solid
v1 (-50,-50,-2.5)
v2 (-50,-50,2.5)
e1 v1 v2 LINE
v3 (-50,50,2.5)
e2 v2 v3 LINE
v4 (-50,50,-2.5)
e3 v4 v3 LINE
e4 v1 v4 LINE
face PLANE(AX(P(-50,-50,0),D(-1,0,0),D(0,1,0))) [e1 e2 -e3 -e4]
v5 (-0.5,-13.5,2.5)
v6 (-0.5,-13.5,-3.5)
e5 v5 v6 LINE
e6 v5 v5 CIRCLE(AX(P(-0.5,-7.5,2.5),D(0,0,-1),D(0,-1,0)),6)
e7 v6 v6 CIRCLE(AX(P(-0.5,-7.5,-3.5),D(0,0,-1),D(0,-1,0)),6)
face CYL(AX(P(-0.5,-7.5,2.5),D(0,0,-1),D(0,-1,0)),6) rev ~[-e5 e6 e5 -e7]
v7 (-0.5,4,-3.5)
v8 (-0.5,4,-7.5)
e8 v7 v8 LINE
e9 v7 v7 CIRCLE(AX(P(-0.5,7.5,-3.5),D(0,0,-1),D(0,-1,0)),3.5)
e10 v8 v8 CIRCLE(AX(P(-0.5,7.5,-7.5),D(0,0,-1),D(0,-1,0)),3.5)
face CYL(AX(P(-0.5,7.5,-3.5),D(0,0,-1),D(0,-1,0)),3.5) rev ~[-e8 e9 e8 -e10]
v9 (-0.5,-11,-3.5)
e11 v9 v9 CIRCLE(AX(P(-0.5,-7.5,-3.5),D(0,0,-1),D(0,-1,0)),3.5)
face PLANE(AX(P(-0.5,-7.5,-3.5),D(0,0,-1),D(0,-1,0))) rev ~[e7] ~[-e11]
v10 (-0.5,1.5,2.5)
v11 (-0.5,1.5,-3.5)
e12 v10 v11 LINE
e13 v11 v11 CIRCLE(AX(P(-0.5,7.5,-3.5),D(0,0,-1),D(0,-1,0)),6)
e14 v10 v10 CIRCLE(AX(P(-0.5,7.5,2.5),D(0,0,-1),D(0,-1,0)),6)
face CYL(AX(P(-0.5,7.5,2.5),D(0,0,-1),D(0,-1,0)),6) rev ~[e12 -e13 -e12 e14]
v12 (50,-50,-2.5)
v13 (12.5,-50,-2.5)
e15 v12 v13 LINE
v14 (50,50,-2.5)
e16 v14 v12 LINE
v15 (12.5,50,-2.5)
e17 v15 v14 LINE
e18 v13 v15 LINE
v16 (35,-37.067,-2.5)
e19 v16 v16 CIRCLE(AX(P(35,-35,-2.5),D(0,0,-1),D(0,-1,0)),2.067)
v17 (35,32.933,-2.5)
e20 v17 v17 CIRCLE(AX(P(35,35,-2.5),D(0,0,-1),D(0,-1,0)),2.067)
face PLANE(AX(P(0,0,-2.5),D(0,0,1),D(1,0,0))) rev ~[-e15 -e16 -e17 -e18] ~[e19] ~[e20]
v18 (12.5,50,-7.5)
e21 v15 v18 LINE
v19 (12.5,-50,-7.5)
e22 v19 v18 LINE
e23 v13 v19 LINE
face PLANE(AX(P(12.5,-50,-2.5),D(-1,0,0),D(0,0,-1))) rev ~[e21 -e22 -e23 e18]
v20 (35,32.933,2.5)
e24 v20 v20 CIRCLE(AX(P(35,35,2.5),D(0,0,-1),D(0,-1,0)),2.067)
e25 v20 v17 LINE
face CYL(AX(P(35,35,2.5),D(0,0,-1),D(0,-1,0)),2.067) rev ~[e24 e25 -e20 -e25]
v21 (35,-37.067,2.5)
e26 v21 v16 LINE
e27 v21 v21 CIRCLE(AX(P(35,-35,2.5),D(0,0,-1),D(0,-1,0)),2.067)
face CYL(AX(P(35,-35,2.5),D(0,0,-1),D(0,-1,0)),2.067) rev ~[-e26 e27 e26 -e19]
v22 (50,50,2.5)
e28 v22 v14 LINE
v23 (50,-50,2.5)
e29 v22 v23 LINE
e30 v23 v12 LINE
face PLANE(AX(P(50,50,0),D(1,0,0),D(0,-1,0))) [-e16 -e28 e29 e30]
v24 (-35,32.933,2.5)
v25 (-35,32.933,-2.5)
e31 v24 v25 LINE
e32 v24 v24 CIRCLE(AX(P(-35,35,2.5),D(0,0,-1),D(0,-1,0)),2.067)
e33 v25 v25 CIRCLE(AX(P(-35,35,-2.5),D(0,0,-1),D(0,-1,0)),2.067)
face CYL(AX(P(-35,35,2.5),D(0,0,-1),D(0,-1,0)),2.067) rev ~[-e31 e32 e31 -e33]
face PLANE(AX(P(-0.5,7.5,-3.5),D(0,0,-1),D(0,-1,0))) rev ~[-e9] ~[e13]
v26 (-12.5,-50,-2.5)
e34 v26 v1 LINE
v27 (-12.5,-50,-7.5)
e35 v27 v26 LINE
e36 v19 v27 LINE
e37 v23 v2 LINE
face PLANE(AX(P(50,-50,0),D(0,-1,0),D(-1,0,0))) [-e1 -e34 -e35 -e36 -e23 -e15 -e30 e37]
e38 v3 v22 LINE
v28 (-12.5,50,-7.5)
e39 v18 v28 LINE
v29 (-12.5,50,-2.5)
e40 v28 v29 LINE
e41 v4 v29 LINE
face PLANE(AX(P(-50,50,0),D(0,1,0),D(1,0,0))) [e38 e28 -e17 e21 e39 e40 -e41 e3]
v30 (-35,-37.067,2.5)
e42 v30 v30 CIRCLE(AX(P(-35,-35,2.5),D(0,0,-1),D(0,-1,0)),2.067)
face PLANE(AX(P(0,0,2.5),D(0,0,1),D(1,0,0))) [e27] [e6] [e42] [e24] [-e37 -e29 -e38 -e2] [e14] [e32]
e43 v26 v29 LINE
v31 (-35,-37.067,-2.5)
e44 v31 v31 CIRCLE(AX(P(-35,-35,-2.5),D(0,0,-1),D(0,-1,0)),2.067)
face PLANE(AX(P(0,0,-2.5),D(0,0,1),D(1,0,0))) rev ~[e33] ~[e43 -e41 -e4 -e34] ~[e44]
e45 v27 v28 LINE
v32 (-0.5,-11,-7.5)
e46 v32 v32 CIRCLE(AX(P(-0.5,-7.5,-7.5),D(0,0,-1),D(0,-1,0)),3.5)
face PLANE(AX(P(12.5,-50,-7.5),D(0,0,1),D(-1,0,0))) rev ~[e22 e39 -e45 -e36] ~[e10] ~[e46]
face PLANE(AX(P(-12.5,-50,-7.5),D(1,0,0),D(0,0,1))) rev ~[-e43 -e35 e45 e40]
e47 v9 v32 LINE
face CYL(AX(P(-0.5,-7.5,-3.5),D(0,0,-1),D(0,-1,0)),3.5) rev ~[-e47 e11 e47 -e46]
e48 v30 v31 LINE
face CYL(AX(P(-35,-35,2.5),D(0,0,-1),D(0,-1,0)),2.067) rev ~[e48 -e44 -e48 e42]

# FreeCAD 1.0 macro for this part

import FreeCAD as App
import Part
import Sketcher

V = App.Vector
Q = App.Units.Quantity


def add_polygon(sketch, points):
    """Adds a closed chain of lines whose ends are joined by coincident constraints."""
    first, n = sketch.GeometryCount, len(points)
    for a, b in zip(points, points[1:] + points[:1]):
        sketch.addGeometry(Part.LineSegment(App.Vector(*a, 0), App.Vector(*b, 0)), False)
    for i in range(n):
        sketch.addConstraint(Sketcher.Constraint("Coincident", first + i, 2, first + (i + 1) % n, 1))

doc = App.newDocument("Part")
body = doc.addObject("PartDesign::Body", "Body")

sketch1 = body.newObject("Sketcher::SketchObject", "Sketch")
sketch1.AttachmentSupport = (doc.getObject("XY_Plane"), [""])
sketch1.MapMode = "FlatFace"
add_polygon(sketch1, [(50, 50), (-50, 50), (-50, -50), (50, -50)])
sketch1.addConstraint([
    Sketcher.Constraint("Horizontal", 0),
    Sketcher.Constraint("Vertical", 1),
    Sketcher.Constraint("Horizontal", 2),
    Sketcher.Constraint("Vertical", 3),
    Sketcher.Constraint("Symmetric", 0, 2, 2, 2, -1, 1),
    Sketcher.Constraint("Equal", 2, 1),
    Sketcher.Constraint("DistanceX", 0, 2, 0, 1, Q("100 mm")),
])
pad1 = body.newObject("PartDesign::Pad", "Pad")
pad1.Profile = sketch1
pad1.Length = 5
pad1.Midplane = True

sketch2 = body.newObject("Sketcher::SketchObject", "Sketch001")
sketch2.AttachmentSupport = (doc.getObject("XZ_Plane"), [""])
sketch2.MapMode = "FlatFace"
sketch2.AttachmentOffset = App.Placement(V(0, 0, 50), App.Rotation())
add_polygon(sketch2, [(12, -2), (-12, -2), (-12, -8), (12, -8)])
sketch2.addConstraint([
    Sketcher.Constraint("Horizontal", 0),
    Sketcher.Constraint("Vertical", 1),
    Sketcher.Constraint("Horizontal", 2),
    Sketcher.Constraint("Vertical", 3),
    Sketcher.Constraint("DistanceX", 0, 2, 0, 1, Q("25 mm")),
    Sketcher.Constraint("DistanceY", 1, 2, 1, 1, Q("5 mm")),
    Sketcher.Constraint("DistanceX", 0, 2, -1, 1, Q("12.5 mm")),
    Sketcher.Constraint("DistanceY", 0, 2, -1, 1, Q("2.5 mm")),
])
pad2 = body.newObject("PartDesign::Pad", "Pad001")
pad2.Profile = sketch2
pad2.Length = 100
pad2.Reversed = True

sketch3 = body.newObject("Sketcher::SketchObject", "Sketch002")
sketch3.AttachmentSupport = (doc.getObject("XY_Plane"), [""])
sketch3.MapMode = "FlatFace"
sketch3.AttachmentOffset = App.Placement(V(0, 0, 2.5), App.Rotation())
sketch3.addGeometry([
    Part.Circle(V(-0.5, -7.5, 0), V(0, 0, 1), 3.5),
    Part.Circle(V(-0.5, 7.5, 0), V(0, 0, 1), 3.5),
], False)
sketch3.addConstraint([
    Sketcher.Constraint("Equal", 0, 1),
    Sketcher.Constraint("Symmetric", 0, 3, 1, 3, -1),
    Sketcher.Constraint("Diameter", 0, Q("7 mm")),
    Sketcher.Constraint("DistanceY", 0, 3, 1, 3, Q("15 mm")),
    Sketcher.Constraint("DistanceX", 0, 3, -1, 1, Q("0.5 mm")),
])
doc.recompute()
hole = body.newObject("PartDesign::Hole", "Hole")
hole.Profile = sketch3
hole.ThreadType = "None"
hole.Diameter = 7
hole.DepthType = "Dimension"
hole.Depth = 10
hole.DrillPoint = "Angled"
hole.DrillPointAngle = 118
hole.HoleCutType = "Counterbore"
hole.HoleCutDiameter = 12
hole.HoleCutDepth = 6

sketch4 = body.newObject("Sketcher::SketchObject", "Sketch003")
sketch4.AttachmentSupport = (doc.getObject("XY_Plane"), [""])
sketch4.MapMode = "FlatFace"
sketch4.AttachmentOffset = App.Placement(V(0, 0, 2.5), App.Rotation())
sketch4.addGeometry([
    Part.Circle(V(35, -35, 0), V(0, 0, 1), 2.1),
    Part.Circle(V(-35, -35, 0), V(0, 0, 1), 2.1),
    Part.Circle(V(-35, 35, 0), V(0, 0, 1), 2.1),
    Part.Circle(V(35, 35, 0), V(0, 0, 1), 2.1),
], False)
sketch4.addConstraint([
    Sketcher.Constraint("Equal", 0, 1),
    Sketcher.Constraint("Equal", 1, 2),
    Sketcher.Constraint("Equal", 2, 3),
    Sketcher.Constraint("Symmetric", 0, 3, 2, 3, -1, 1),
    Sketcher.Constraint("Symmetric", 1, 3, 3, 3, -1, 1),
    Sketcher.Constraint("Symmetric", 0, 3, 1, 3, -2),
    Sketcher.Constraint("Diameter", 0, Q("4.134 mm")),
    Sketcher.Constraint("DistanceX", -1, 1, 0, 3, Q("35 mm")),
    Sketcher.Constraint("DistanceY", 0, 3, -1, 1, Q("35 mm")),
])
doc.recompute()
hole2 = body.newObject("PartDesign::Hole", "Hole001")
hole2.Profile = sketch4
hole2.ThreadType = "None"
hole2.Diameter = 4.134
hole2.DepthType = "Dimension"
hole2.Depth = 14.2
hole2.DrillPoint = "Angled"
hole2.DrillPointAngle = 118

doc.recompute()
